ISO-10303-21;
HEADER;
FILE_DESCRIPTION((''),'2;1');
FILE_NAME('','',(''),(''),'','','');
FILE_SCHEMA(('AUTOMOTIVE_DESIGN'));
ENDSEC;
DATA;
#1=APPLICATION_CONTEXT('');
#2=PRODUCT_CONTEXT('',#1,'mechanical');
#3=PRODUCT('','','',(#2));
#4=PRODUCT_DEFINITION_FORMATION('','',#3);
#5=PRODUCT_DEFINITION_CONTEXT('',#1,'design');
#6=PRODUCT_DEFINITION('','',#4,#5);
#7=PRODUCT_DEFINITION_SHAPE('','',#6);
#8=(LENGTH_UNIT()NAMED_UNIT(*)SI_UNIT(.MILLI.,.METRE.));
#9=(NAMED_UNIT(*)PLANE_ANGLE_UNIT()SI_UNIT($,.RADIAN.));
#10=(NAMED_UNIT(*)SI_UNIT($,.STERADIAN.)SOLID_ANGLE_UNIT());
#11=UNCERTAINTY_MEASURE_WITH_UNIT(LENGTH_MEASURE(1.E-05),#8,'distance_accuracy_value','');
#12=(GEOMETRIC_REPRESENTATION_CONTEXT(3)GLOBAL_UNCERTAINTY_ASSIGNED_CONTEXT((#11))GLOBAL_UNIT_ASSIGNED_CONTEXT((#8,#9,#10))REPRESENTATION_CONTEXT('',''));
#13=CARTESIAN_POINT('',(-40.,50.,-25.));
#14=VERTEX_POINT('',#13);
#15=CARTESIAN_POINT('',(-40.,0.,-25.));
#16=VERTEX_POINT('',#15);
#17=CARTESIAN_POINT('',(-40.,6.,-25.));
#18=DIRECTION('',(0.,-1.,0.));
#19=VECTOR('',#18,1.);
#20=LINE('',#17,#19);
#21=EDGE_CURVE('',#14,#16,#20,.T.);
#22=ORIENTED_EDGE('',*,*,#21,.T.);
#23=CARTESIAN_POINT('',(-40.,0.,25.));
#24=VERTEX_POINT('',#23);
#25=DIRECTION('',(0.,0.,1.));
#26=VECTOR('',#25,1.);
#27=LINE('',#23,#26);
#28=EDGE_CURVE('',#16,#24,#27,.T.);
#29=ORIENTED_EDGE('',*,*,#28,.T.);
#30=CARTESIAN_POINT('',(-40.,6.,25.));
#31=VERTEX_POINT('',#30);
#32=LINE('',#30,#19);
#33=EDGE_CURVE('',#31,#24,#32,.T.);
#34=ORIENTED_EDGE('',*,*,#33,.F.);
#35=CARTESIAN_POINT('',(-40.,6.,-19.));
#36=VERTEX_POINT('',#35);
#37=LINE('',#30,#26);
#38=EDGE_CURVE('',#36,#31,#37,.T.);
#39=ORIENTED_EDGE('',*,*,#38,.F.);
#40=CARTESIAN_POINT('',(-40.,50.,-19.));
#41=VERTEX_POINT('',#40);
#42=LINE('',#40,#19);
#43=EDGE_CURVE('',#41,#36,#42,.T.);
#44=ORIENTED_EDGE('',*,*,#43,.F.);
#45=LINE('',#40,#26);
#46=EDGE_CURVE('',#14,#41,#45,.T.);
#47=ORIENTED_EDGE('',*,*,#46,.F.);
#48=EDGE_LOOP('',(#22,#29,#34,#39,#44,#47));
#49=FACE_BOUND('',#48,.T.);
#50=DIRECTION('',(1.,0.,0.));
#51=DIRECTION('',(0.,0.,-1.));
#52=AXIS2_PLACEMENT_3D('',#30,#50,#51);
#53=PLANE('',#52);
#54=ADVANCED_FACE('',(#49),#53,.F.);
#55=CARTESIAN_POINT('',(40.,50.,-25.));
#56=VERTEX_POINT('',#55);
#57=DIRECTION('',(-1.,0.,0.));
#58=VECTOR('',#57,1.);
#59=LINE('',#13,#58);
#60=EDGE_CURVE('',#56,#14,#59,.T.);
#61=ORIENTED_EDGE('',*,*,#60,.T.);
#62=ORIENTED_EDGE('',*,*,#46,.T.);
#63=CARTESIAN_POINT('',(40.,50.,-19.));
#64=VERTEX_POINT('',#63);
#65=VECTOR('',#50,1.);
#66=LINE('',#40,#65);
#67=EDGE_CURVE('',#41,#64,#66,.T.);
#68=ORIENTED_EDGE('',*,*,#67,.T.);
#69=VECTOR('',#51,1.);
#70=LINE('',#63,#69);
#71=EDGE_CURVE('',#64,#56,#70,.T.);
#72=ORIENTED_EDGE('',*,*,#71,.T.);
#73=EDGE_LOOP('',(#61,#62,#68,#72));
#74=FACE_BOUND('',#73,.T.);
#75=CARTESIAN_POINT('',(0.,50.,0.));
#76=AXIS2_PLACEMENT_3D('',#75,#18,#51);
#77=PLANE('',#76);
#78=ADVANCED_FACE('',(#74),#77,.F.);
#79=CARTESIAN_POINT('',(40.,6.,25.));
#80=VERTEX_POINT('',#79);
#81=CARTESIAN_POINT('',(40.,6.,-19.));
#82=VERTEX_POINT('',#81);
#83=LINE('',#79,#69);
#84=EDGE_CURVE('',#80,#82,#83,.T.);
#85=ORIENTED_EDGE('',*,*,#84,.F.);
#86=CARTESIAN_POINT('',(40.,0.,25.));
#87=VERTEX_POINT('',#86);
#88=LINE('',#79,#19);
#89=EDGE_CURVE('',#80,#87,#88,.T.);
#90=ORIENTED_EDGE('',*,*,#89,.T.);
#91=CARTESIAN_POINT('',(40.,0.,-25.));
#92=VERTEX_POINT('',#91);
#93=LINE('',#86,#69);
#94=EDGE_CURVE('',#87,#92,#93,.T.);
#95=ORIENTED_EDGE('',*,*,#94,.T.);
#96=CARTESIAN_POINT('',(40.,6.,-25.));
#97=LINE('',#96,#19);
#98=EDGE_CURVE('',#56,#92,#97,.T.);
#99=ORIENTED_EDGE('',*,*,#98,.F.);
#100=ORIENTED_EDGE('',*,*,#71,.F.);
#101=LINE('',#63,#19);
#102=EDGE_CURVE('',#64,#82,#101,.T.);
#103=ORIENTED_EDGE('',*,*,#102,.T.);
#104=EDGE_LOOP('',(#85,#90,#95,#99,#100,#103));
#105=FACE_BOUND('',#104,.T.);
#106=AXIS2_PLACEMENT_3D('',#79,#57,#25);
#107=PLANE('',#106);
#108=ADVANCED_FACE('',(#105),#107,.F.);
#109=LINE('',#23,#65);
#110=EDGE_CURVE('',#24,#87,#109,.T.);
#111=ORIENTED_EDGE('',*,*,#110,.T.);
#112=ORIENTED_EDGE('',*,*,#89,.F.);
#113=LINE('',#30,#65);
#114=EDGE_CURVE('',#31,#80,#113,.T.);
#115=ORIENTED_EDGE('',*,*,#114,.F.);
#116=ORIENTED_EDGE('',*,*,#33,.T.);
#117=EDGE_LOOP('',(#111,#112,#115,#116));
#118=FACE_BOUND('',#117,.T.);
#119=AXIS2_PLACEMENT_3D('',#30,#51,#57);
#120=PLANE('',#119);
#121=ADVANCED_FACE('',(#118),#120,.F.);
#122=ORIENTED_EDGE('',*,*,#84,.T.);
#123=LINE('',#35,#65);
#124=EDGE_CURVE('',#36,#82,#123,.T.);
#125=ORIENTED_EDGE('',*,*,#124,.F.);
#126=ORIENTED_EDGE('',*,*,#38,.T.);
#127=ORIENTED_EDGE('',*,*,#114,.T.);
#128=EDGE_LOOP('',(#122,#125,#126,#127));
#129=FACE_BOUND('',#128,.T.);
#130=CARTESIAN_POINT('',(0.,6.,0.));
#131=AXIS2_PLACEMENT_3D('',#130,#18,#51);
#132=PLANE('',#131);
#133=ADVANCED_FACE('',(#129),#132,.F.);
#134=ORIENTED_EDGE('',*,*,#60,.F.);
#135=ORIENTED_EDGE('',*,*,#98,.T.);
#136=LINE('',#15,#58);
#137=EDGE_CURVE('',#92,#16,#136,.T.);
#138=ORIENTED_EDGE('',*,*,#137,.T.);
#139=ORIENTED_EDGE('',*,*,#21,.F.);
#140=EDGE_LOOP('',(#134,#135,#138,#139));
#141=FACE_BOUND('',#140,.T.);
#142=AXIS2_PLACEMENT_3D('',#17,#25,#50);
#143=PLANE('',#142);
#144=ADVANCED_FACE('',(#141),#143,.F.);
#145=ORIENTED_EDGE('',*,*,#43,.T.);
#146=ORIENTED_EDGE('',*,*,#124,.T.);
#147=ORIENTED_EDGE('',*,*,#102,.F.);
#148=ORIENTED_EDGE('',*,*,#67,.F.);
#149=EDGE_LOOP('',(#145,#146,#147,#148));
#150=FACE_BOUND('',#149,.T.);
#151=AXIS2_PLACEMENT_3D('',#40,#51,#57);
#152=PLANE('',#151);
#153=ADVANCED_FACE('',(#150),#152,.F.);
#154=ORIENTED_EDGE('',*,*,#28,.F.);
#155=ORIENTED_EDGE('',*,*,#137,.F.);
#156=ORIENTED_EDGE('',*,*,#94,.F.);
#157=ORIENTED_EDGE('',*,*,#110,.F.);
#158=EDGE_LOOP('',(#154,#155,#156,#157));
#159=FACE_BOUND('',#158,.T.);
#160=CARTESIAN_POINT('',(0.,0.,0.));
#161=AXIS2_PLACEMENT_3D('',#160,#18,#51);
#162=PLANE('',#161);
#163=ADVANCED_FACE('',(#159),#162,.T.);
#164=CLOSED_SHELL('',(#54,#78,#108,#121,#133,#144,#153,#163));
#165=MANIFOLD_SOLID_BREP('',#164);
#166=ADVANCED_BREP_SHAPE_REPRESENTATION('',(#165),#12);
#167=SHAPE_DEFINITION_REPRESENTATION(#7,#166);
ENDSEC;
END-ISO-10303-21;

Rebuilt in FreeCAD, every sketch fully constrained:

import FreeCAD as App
import Part
import Sketcher
Q = App.Units.Quantity

doc = App.newDocument("Part")
body = doc.addObject("PartDesign::Body", "Body")

# Sketch on XZ plane
sketch1 = body.newObject("Sketcher::SketchObject", "Sketch")
sketch1.AttachmentSupport = (doc.getObject("XZ_Plane"), [""])
sketch1.MapMode = "FlatFace"
sketch1.addGeometry(Part.LineSegment(App.Vector(-40, -25, 0), App.Vector(-40, 25, 0)), False)
sketch1.addGeometry(Part.LineSegment(App.Vector(-40, 25, 0), App.Vector(40, 25, 0)), False)
sketch1.addGeometry(Part.LineSegment(App.Vector(40, 25, 0), App.Vector(40, -25, 0)), False)
sketch1.addGeometry(Part.LineSegment(App.Vector(40, -25, 0), App.Vector(-40, -25, 0)), False)
sketch1.addConstraint(Sketcher.Constraint("Coincident", 0, 2, 1, 1))
sketch1.addConstraint(Sketcher.Constraint("Coincident", 1, 2, 2, 1))
sketch1.addConstraint(Sketcher.Constraint("Coincident", 2, 2, 3, 1))
sketch1.addConstraint(Sketcher.Constraint("Coincident", 3, 2, 0, 1))
sketch1.addConstraint(Sketcher.Constraint("Vertical", 0))
sketch1.addConstraint(Sketcher.Constraint("Horizontal", 1))
sketch1.addConstraint(Sketcher.Constraint("Vertical", 2))
sketch1.addConstraint(Sketcher.Constraint("Horizontal", 3))
sketch1.addConstraint(Sketcher.Constraint("Symmetric", 0, 2, 2, 2, -1, 1))
sketch1.addConstraint(Sketcher.Constraint("DistanceX", 1, 1, 1, 2, Q("80 mm")))
sketch1.addConstraint(Sketcher.Constraint("DistanceY", 0, 1, 0, 2, Q("50 mm")))
pad1 = body.newObject("PartDesign::Pad", "Pad")
pad1.Profile = sketch1
pad1.Length = 6
pad1.Reversed = True

# Sketch on XZ plane
sketch2 = body.newObject("Sketcher::SketchObject", "Sketch001")
sketch2.AttachmentSupport = (doc.getObject("XZ_Plane"), [""])
sketch2.MapMode = "FlatFace"
sketch2.AttachmentOffset = App.Placement(App.Vector(0, 0, -6), App.Rotation())
sketch2.addGeometry(Part.LineSegment(App.Vector(-40, -25, 0), App.Vector(-40, -19, 0)), False)
sketch2.addGeometry(Part.LineSegment(App.Vector(-40, -19, 0), App.Vector(40, -19, 0)), False)
sketch2.addGeometry(Part.LineSegment(App.Vector(40, -19, 0), App.Vector(40, -25, 0)), False)
sketch2.addGeometry(Part.LineSegment(App.Vector(40, -25, 0), App.Vector(-40, -25, 0)), False)
sketch2.addConstraint(Sketcher.Constraint("Coincident", 0, 2, 1, 1))
sketch2.addConstraint(Sketcher.Constraint("Coincident", 1, 2, 2, 1))
sketch2.addConstraint(Sketcher.Constraint("Coincident", 2, 2, 3, 1))
sketch2.addConstraint(Sketcher.Constraint("Coincident", 3, 2, 0, 1))
sketch2.addConstraint(Sketcher.Constraint("Vertical", 0))
sketch2.addConstraint(Sketcher.Constraint("Horizontal", 1))
sketch2.addConstraint(Sketcher.Constraint("Vertical", 2))
sketch2.addConstraint(Sketcher.Constraint("Horizontal", 3))
sketch2.addConstraint(Sketcher.Constraint("DistanceX", 1, 1, 1, 2, Q("80 mm")))
sketch2.addConstraint(Sketcher.Constraint("DistanceY", 0, 1, 0, 2, Q("6 mm")))
sketch2.addConstraint(Sketcher.Constraint("DistanceX", 0, 2, -1, 1, Q("40 mm")))
sketch2.addConstraint(Sketcher.Constraint("DistanceY", 0, 2, -1, 1, Q("19 mm")))
pad2 = body.newObject("PartDesign::Pad", "Pad001")
pad2.Profile = sketch2
pad2.Length = 44
pad2.Reversed = True

doc.recompute()
